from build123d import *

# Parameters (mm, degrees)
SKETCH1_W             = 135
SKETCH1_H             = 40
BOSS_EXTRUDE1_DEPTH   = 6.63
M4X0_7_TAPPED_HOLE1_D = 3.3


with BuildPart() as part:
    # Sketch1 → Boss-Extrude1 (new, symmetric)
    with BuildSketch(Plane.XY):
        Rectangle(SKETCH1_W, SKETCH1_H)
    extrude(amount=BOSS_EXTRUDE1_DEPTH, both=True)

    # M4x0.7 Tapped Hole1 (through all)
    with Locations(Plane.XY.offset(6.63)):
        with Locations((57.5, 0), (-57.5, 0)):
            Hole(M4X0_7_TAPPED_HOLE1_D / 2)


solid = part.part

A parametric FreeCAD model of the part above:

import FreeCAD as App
import Part
import Sketcher
from FreeCAD import Vector


def add_polygon(sketch, points):
    """Adds a closed chain of lines whose ends are joined by coincident constraints."""
    first, n = sketch.GeometryCount, len(points)
    for a, b in zip(points, points[1:] + points[:1]):
        sketch.addGeometry(Part.LineSegment(App.Vector(*a, 0), App.Vector(*b, 0)), False)
    for i in range(n):
        sketch.addConstraint(Sketcher.Constraint("Coincident", first + i, 2, first + (i + 1) % n, 1))

doc = App.newDocument("Part")
params = doc.addObject("Spreadsheet::Sheet", "Params")
for row, (alias, value) in enumerate([
    ("sketch1_width", "135 mm"),
    ("sketch1_height", "40 mm"),
    ("pad1_length", "13.26 mm"),
    ("sketch2_diameter", "3.3 mm"),
    ("hole_diameter", "3.3 mm"),
], start=1):
    params.set(f"A{row}", alias)
    params.set(f"B{row}", "=" + value)
    params.setAlias(f"B{row}", alias)

body = doc.addObject("PartDesign::Body", "Body")

sketch1 = doc.addObject("Sketcher::SketchObject", "Sketch")
body.addObject(sketch1)
sketch1.AttachmentSupport = (doc.XY_Plane, [""])
sketch1.MapMode = "FlatFace"
add_polygon(sketch1, [(-68, 20), (-68, -20), (68, -20), (68, 20)])
sketch1.addConstraint(Sketcher.Constraint("Vertical", 0))
sketch1.addConstraint(Sketcher.Constraint("Horizontal", 1))
sketch1.addConstraint(Sketcher.Constraint("Vertical", 2))
sketch1.addConstraint(Sketcher.Constraint("Horizontal", 3))
sketch1.addConstraint(Sketcher.Constraint("Symmetric", 0, 2, 2, 2, -1, 1))
sketch1.addConstraint(Sketcher.Constraint("DistanceX", 1, 1, 1, 2, 135.0))
sketch1.addConstraint(Sketcher.Constraint("DistanceY", 0, 2, 0, 1, 40.0))
sketch1.setExpression("Constraints[9]", "Params.sketch1_width")
sketch1.setExpression("Constraints[10]", "Params.sketch1_height")
pad1 = doc.addObject("PartDesign::Pad", "Pad")
body.addObject(pad1)
pad1.Profile = sketch1
pad1.setExpression("Length", "Params.pad1_length")
pad1.Midplane = True

sketch2 = doc.addObject("Sketcher::SketchObject", "Sketch001")
body.addObject(sketch2)
sketch2.AttachmentSupport = (doc.XY_Plane, [""])
sketch2.MapMode = "FlatFace"
sketch2.AttachmentOffset = App.Placement(Vector(0, 0, 6.63), App.Rotation())
sketch2.addGeometry(Part.Circle(Vector(57.5, 0, 0), Vector(0, 0, 1), 1.6), False)
sketch2.addGeometry(Part.Circle(Vector(-57.5, 0, 0), Vector(0, 0, 1), 1.6), False)
sketch2.addConstraint(Sketcher.Constraint("Equal", 0, 1))
sketch2.addConstraint(Sketcher.Constraint("Symmetric", 0, 3, 1, 3, -1, 1))
sketch2.addConstraint(Sketcher.Constraint("PointOnObject", 0, 3, -1))
sketch2.addConstraint(Sketcher.Constraint("Diameter", 0, 3.3))
sketch2.addConstraint(Sketcher.Constraint("DistanceX", 1, 3, 0, 3, 115.0))
sketch2.setExpression("Constraints[3]", "Params.sketch2_diameter")
doc.recompute()
hole = doc.addObject("PartDesign::Hole", "Hole")
body.addObject(hole)
hole.Profile = sketch2
hole.ThreadType = "None"
hole.setExpression("Diameter", "Params.hole_diameter")
hole.DepthType = "ThroughAll"

doc.recompute()
